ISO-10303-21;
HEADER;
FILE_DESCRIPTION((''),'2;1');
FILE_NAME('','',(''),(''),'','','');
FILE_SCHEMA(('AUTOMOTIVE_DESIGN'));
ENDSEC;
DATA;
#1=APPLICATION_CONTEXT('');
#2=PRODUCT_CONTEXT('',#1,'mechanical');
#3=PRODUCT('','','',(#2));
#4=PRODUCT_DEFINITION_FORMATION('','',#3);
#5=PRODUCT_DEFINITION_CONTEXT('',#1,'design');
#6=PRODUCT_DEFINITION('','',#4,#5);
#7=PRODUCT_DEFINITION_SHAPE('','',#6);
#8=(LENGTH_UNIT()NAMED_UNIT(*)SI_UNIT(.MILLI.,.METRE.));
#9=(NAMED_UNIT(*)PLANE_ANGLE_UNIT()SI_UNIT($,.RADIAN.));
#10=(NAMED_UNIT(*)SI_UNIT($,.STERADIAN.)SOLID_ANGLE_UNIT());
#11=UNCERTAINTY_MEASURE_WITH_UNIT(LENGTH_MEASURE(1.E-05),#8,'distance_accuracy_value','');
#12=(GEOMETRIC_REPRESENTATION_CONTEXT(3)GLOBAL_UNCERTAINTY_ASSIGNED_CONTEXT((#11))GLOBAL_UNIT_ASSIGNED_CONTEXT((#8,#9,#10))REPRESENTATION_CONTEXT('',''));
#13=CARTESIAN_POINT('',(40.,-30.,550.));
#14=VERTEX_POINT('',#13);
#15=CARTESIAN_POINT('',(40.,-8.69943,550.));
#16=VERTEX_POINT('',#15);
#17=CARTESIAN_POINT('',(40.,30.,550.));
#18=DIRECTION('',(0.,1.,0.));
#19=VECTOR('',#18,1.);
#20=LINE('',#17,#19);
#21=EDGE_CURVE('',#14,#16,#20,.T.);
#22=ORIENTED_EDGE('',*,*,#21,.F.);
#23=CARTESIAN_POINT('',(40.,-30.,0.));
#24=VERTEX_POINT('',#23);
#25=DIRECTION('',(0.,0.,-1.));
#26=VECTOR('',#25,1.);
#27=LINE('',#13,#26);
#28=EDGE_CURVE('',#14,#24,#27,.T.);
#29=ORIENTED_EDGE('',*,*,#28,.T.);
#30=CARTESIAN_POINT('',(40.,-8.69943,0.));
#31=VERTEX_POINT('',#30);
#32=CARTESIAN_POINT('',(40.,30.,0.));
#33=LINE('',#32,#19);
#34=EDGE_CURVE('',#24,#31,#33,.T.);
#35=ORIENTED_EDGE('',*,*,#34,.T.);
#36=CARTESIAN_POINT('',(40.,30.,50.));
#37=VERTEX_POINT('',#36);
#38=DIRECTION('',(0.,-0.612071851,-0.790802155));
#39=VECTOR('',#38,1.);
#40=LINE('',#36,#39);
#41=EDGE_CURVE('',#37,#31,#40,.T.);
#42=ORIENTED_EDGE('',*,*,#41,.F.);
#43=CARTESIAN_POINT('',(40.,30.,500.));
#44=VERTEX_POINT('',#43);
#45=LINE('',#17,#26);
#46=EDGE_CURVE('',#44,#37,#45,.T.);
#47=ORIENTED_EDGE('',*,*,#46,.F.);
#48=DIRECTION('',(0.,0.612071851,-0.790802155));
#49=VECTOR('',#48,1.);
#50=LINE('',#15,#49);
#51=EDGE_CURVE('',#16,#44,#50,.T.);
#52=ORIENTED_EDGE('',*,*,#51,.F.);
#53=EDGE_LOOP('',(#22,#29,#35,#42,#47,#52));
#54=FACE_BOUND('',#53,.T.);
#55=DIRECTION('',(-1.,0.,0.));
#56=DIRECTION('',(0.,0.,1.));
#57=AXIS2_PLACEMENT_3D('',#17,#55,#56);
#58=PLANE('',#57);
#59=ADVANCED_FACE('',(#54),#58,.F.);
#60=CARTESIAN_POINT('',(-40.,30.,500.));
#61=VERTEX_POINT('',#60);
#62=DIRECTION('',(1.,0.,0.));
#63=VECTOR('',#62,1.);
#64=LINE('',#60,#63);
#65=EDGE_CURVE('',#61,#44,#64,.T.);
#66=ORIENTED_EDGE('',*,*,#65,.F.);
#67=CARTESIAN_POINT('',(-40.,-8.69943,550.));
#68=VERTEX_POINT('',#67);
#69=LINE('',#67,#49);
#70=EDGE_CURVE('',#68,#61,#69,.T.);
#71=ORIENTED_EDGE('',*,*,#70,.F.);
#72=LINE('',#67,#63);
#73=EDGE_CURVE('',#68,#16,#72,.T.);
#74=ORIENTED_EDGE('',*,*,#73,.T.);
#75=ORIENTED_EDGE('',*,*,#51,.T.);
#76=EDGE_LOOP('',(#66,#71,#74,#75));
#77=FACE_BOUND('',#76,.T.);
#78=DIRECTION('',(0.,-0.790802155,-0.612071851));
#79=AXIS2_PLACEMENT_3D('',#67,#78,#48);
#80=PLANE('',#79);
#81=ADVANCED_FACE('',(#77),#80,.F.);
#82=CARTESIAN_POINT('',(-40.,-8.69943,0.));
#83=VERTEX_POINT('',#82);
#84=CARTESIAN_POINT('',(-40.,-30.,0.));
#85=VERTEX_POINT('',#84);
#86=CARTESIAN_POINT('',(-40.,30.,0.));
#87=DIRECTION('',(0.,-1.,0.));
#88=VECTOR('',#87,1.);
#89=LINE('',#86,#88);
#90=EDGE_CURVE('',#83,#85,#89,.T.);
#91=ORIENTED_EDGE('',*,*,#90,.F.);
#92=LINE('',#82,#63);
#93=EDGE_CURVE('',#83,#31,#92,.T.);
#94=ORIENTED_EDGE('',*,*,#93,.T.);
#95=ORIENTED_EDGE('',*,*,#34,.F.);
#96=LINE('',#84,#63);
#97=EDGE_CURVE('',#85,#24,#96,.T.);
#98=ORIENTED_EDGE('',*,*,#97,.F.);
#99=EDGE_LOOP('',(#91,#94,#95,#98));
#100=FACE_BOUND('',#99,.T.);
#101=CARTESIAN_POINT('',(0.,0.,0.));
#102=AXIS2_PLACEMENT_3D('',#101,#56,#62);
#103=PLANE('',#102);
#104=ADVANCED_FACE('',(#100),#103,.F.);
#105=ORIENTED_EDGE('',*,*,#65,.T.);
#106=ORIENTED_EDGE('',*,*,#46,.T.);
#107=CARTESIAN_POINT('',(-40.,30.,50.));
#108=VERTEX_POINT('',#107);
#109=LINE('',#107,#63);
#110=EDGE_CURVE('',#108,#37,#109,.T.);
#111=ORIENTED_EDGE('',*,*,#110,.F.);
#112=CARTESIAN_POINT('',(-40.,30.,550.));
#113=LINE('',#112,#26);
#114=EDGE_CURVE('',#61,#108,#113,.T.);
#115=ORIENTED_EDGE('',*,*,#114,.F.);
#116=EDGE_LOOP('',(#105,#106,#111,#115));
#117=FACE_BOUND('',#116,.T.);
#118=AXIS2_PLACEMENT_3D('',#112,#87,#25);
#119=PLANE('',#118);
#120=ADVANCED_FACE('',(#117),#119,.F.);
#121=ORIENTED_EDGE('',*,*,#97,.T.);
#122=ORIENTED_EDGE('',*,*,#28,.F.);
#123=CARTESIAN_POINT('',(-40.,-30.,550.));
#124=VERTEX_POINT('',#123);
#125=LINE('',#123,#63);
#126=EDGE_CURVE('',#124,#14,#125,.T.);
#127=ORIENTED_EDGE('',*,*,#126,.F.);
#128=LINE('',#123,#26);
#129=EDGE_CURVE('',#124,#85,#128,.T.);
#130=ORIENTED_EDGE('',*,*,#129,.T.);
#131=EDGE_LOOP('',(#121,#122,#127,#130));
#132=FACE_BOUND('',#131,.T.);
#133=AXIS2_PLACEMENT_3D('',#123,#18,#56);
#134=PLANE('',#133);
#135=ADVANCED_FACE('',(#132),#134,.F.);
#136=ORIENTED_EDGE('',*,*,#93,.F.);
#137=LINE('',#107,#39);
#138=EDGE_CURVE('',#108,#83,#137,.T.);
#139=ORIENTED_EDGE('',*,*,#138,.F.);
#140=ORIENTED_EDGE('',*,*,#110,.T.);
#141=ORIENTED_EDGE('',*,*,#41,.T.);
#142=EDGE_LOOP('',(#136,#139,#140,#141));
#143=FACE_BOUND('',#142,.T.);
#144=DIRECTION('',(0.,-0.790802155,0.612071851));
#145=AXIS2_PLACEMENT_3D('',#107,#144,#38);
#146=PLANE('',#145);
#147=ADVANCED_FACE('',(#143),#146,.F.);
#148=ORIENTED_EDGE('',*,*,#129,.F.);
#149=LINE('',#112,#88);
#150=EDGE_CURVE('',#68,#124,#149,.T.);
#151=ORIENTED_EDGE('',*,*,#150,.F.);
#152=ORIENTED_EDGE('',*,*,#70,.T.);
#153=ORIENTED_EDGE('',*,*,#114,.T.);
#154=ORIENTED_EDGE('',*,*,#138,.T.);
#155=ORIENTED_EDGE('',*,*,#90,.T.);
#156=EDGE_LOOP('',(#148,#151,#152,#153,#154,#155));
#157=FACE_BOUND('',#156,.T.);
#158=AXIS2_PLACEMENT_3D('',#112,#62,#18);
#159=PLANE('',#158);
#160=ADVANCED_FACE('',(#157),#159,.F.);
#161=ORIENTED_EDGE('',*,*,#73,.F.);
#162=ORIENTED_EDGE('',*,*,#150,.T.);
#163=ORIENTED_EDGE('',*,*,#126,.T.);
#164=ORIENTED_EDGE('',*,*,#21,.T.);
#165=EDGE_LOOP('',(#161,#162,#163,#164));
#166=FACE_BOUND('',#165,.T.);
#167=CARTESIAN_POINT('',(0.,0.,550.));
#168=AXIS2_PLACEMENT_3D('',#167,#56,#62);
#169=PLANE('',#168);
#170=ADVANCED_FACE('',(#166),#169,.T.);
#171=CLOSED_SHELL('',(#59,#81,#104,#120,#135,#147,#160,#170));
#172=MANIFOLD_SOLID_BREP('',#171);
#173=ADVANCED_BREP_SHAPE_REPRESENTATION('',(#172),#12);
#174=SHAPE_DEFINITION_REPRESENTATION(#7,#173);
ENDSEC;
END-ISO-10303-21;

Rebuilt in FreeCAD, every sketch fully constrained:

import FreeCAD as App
import Part
import Sketcher
from FreeCAD import Vector
Q = App.Units.Quantity

doc = App.newDocument("Part")
params = doc.addObject("Spreadsheet::Sheet", "Params")
for row, (alias, value) in enumerate([
    ("sketch1_width", "80 mm"),
    ("sketch1_height", "60 mm"),
    ("pad1_length", "550 mm"),
    ("sketch2_height", "50 mm"),
    ("pocket1_length", "80 mm"),
], start=1):
    params.set(f"A{row}", alias)
    params.set(f"B{row}", "=" + value)
    params.setAlias(f"B{row}", alias)

body = doc.addObject("PartDesign::Body", "Body")

sketch1 = body.newObject("Sketcher::SketchObject", "Sketch")
sketch1.AttachmentSupport = (doc.getObject("XY_Plane"), [""])
sketch1.MapMode = "FlatFace"
sketch1.addGeometry(Part.LineSegment(Vector(-40, 30, 0), Vector(-40, -30, 0)), False)
sketch1.addGeometry(Part.LineSegment(Vector(-40, -30, 0), Vector(40, -30, 0)), False)
sketch1.addGeometry(Part.LineSegment(Vector(40, -30, 0), Vector(40, 30, 0)), False)
sketch1.addGeometry(Part.LineSegment(Vector(40, 30, 0), Vector(-40, 30, 0)), False)
sketch1.addConstraint(Sketcher.Constraint("Coincident", 0, 2, 1, 1))
sketch1.addConstraint(Sketcher.Constraint("Coincident", 1, 2, 2, 1))
sketch1.addConstraint(Sketcher.Constraint("Coincident", 2, 2, 3, 1))
sketch1.addConstraint(Sketcher.Constraint("Coincident", 3, 2, 0, 1))
sketch1.addConstraint(Sketcher.Constraint("Vertical", 0))
sketch1.addConstraint(Sketcher.Constraint("Horizontal", 1))
sketch1.addConstraint(Sketcher.Constraint("Vertical", 2))
sketch1.addConstraint(Sketcher.Constraint("Horizontal", 3))
sketch1.addConstraint(Sketcher.Constraint("Symmetric", 0, 2, 2, 2, -1, 1))
sketch1.addConstraint(Sketcher.Constraint("DistanceX", 1, 1, 1, 2, Q("80 mm")))
sketch1.addConstraint(Sketcher.Constraint("DistanceY", 0, 2, 0, 1, Q("60 mm")))
sketch1.setExpression("Constraints[9]", "Params.sketch1_width")
sketch1.setExpression("Constraints[10]", "Params.sketch1_height")
pad1 = body.newObject("PartDesign::Pad", "Pad")
pad1.Profile = sketch1
pad1.setExpression("Length", "Params.pad1_length")

sketch2 = body.newObject("Sketcher::SketchObject", "Sketch001")
sketch2.AttachmentSupport = (doc.getObject("YZ_Plane"), [""])
sketch2.MapMode = "FlatFace"
sketch2.AttachmentOffset = App.Placement(Vector(0, 0, 40), App.Rotation())
sketch2.addGeometry(Part.LineSegment(Vector(30, 550, 0), Vector(-9, 550, 0)), False)
sketch2.addGeometry(Part.LineSegment(Vector(-9, 550, 0), Vector(30, 500, 0)), False)
sketch2.addGeometry(Part.LineSegment(Vector(30, 500, 0), Vector(30, 550, 0)), False)
sketch2.addGeometry(Part.LineSegment(Vector(30, 50, 0), Vector(-9, 0, 0)), False)
sketch2.addGeometry(Part.LineSegment(Vector(-9, 0, 0), Vector(30, 0, 0)), False)
sketch2.addGeometry(Part.LineSegment(Vector(30, 0, 0), Vector(30, 50, 0)), False)
sketch2.addConstraint(Sketcher.Constraint("Coincident", 0, 2, 1, 1))
sketch2.addConstraint(Sketcher.Constraint("Coincident", 1, 2, 2, 1))
sketch2.addConstraint(Sketcher.Constraint("Coincident", 2, 2, 0, 1))
sketch2.addConstraint(Sketcher.Constraint("Coincident", 3, 2, 4, 1))
sketch2.addConstraint(Sketcher.Constraint("Coincident", 4, 2, 5, 1))
sketch2.addConstraint(Sketcher.Constraint("Coincident", 5, 2, 3, 1))
sketch2.addConstraint(Sketcher.Constraint("Horizontal", 0))
sketch2.addConstraint(Sketcher.Constraint("Vertical", 2))
sketch2.addConstraint(Sketcher.Constraint("Horizontal", 4))
sketch2.addConstraint(Sketcher.Constraint("Vertical", 5))
sketch2.addConstraint(Sketcher.Constraint("PointOnObject", 3, 2, -1))
sketch2.addConstraint(Sketcher.Constraint("Vertical", 0, 2, 3, 2))
sketch2.addConstraint(Sketcher.Constraint("Vertical", 2, 2, 4, 2))
sketch2.addConstraint(Sketcher.Constraint("Equal", 2, 5))
sketch2.addConstraint(Sketcher.Constraint("DistanceY", 2, 1, 2, 2, Q("50 mm")))
sketch2.addConstraint(Sketcher.Constraint("DistanceY", -1, 1, 0, 2, Q("550 mm")))
sketch2.addConstraint(Sketcher.Constraint("DistanceX", -1, 1, 1, 2, Q("30 mm")))
sketch2.addConstraint(Sketcher.Constraint("DistanceX", 0, 2, 0, 1, Q("38.69943 mm")))
sketch2.setExpression("Constraints[14]", "Params.sketch2_height")
pocket1 = body.newObject("PartDesign::Pocket", "Pocket")
pocket1.Profile = sketch2
pocket1.setExpression("Length", "Params.pocket1_length")

doc.recompute()
